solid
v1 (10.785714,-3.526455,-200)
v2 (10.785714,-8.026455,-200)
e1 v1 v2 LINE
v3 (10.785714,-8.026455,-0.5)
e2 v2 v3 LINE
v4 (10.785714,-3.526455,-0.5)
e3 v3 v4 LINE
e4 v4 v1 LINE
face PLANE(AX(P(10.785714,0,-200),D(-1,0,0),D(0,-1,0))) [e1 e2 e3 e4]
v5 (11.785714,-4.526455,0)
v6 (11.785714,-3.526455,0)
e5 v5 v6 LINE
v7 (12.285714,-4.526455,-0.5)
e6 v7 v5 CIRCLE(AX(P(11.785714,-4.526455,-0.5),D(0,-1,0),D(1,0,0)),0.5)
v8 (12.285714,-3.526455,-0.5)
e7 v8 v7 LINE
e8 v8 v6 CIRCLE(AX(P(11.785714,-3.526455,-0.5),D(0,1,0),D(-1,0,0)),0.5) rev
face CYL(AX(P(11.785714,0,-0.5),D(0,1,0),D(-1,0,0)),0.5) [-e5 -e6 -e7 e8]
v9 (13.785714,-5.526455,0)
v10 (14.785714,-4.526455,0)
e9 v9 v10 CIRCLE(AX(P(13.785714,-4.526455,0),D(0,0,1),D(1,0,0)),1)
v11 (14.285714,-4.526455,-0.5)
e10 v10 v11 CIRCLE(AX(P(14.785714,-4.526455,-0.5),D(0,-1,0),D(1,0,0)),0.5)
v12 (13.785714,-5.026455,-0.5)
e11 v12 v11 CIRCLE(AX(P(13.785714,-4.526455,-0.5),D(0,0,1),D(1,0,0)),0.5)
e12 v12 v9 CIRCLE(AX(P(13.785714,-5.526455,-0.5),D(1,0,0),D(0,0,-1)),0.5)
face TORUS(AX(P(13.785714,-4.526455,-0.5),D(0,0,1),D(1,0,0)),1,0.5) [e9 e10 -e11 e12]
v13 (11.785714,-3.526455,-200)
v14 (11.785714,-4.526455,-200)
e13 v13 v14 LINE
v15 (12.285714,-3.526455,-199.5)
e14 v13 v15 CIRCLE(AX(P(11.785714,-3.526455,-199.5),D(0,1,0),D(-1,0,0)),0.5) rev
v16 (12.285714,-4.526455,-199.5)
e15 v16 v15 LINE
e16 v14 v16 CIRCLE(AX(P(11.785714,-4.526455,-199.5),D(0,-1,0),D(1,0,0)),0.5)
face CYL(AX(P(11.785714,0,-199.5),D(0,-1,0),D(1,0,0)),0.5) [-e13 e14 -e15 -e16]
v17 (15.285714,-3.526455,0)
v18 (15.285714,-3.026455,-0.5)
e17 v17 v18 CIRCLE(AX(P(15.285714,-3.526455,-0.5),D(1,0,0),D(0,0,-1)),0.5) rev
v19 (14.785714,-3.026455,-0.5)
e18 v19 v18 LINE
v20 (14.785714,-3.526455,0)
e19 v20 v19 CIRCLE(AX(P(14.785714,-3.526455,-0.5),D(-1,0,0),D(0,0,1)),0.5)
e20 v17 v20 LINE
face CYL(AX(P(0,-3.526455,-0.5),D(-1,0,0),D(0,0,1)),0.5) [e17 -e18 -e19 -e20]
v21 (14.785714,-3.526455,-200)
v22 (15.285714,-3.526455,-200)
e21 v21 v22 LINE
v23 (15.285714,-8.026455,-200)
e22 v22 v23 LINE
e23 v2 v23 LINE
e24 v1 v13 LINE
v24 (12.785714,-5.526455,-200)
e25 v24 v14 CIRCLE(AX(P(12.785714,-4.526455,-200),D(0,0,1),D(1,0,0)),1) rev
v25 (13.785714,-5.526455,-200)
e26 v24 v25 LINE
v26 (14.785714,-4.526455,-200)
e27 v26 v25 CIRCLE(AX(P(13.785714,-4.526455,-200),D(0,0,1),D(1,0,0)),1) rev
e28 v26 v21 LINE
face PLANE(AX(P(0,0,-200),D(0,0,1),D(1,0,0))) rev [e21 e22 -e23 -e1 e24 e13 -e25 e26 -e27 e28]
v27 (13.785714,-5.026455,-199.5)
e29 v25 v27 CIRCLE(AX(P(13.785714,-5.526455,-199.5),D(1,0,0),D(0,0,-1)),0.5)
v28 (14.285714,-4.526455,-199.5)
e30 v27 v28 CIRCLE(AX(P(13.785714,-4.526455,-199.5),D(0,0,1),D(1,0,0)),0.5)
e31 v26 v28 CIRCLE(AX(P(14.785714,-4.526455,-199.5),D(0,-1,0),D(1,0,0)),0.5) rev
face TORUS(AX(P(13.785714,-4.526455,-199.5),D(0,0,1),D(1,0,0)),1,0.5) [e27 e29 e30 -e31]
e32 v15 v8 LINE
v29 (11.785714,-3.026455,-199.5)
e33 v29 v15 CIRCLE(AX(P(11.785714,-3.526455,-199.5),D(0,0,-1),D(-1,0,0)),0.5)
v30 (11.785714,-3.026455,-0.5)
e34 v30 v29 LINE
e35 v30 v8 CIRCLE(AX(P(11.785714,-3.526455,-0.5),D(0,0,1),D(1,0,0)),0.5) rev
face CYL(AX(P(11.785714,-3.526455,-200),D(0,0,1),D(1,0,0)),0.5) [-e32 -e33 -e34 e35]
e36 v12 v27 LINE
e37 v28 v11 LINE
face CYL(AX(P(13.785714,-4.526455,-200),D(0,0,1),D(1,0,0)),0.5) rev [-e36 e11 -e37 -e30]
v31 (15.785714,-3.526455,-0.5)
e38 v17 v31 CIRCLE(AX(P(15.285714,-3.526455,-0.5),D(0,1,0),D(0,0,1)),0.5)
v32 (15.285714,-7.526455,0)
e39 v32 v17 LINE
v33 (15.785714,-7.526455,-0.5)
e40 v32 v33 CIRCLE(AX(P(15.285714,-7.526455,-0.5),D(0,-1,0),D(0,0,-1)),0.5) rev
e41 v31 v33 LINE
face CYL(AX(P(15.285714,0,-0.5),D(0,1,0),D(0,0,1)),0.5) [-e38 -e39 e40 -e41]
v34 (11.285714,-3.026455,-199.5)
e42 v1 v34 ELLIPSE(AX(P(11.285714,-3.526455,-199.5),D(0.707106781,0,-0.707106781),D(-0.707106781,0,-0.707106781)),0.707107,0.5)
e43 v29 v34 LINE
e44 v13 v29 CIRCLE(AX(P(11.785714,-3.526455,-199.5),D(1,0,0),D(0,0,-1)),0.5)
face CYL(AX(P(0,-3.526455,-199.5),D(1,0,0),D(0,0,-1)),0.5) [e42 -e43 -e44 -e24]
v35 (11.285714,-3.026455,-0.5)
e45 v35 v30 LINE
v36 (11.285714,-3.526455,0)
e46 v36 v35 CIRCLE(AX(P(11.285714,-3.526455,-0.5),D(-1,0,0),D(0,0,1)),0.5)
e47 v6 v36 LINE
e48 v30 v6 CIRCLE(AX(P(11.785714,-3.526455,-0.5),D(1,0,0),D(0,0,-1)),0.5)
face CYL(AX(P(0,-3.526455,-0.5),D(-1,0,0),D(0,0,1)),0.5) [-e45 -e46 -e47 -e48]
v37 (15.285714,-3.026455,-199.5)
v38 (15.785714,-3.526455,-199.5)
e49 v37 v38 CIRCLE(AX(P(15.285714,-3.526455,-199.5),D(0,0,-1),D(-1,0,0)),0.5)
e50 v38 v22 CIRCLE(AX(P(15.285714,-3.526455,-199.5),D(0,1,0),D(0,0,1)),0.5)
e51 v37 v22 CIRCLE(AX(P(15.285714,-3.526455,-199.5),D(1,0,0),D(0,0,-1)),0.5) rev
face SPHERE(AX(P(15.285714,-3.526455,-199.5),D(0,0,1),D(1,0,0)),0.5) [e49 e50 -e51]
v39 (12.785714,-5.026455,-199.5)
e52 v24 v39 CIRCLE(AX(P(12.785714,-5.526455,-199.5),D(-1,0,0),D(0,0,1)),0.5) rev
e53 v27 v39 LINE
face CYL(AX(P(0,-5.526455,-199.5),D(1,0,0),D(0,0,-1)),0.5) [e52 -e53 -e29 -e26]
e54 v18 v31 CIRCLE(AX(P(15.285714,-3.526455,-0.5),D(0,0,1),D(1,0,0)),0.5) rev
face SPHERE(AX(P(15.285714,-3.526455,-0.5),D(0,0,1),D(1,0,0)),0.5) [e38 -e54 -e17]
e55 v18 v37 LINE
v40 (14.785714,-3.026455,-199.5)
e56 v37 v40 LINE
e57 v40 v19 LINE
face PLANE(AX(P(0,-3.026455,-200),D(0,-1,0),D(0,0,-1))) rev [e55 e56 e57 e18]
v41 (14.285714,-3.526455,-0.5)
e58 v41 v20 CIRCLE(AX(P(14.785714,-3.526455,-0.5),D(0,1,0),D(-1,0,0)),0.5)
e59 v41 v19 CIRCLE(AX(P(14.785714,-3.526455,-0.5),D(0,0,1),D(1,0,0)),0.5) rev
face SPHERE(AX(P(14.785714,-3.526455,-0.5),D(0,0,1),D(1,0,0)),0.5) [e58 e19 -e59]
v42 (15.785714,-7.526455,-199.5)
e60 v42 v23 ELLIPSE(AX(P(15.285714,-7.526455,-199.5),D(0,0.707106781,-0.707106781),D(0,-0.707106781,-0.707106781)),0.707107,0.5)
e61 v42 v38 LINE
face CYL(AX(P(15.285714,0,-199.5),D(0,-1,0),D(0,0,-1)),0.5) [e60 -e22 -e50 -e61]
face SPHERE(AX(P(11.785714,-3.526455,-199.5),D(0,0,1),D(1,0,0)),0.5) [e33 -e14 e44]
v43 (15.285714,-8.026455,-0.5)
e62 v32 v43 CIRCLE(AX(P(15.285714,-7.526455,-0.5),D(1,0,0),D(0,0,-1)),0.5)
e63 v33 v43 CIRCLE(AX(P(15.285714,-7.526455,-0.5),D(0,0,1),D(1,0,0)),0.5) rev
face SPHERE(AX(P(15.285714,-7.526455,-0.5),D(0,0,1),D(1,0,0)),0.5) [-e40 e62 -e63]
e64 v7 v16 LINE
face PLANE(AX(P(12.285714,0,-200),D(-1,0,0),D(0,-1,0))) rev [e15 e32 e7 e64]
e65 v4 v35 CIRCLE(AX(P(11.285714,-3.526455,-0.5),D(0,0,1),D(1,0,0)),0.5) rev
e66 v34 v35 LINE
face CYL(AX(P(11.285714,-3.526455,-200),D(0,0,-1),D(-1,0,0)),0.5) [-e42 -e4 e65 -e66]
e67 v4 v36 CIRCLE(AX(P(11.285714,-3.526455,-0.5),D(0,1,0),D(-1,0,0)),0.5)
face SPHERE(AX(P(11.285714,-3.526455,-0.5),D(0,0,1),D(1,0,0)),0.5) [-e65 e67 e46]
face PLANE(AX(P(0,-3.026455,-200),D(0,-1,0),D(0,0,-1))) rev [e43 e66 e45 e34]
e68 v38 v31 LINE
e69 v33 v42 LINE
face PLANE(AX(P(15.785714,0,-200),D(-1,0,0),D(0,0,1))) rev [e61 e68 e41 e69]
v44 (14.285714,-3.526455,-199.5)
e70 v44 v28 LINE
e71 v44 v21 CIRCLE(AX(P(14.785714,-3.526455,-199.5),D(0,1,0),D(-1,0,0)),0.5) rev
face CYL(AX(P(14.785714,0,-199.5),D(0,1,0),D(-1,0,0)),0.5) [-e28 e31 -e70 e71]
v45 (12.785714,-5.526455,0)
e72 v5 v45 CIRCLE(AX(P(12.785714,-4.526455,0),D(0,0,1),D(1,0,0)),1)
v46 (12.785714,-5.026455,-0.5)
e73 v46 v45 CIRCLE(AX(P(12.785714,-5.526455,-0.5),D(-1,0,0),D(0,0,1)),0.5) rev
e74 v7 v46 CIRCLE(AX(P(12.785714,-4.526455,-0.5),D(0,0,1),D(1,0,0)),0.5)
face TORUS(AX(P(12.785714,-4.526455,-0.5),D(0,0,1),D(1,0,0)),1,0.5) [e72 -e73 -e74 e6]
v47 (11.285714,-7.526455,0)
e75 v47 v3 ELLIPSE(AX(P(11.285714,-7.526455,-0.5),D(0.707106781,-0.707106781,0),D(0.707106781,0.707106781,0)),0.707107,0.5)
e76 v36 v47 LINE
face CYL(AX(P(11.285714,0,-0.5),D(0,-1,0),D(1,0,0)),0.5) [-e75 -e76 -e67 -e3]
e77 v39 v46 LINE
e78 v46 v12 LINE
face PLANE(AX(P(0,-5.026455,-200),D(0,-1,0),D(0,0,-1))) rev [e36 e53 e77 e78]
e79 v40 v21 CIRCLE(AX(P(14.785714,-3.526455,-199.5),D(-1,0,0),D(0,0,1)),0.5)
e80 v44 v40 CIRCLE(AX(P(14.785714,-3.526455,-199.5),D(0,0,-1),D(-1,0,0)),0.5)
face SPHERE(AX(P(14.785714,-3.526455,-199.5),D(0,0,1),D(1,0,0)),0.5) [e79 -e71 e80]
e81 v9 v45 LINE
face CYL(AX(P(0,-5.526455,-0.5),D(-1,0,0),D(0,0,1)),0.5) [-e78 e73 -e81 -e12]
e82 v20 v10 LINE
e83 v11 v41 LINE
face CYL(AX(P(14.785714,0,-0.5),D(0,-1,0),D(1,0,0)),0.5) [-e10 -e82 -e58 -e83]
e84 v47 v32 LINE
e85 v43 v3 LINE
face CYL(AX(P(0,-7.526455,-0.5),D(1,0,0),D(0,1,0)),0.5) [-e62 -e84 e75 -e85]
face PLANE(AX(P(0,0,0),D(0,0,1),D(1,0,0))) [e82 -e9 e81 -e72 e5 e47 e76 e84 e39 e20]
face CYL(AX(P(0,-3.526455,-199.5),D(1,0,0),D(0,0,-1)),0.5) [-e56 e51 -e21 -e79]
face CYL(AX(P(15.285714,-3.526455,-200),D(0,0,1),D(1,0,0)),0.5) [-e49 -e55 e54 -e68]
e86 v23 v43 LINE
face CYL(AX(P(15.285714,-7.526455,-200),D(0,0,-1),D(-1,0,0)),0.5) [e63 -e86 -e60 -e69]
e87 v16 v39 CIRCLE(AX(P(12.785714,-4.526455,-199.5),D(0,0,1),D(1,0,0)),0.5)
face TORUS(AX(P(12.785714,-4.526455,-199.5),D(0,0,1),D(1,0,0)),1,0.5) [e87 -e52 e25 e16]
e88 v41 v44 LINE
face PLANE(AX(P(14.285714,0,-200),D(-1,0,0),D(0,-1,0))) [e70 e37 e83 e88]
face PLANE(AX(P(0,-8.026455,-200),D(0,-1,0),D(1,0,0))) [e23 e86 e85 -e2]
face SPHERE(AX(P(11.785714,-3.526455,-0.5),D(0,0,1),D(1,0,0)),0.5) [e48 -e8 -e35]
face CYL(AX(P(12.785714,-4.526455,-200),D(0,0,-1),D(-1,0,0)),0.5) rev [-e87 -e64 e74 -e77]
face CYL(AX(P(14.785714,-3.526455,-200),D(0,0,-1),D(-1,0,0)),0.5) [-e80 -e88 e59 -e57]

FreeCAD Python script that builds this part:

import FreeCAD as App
import Part
import Sketcher

V = App.Vector
Q = App.Units.Quantity


def edges_at(feature, points):
    """Names of the edges that pass closest to the given points."""
    edges = feature.Shape.Edges
    near = lambda p: min(range(len(edges)), key=lambda i: edges[i].distToShape(Part.Vertex(*p))[0])
    return sorted({f"Edge{near(p) + 1}" for p in points})


def add_polygon(sketch, points):
    """Adds a closed chain of lines whose ends are joined by coincident constraints."""
    first, n = sketch.GeometryCount, len(points)
    for a, b in zip(points, points[1:] + points[:1]):
        sketch.addGeometry(Part.LineSegment(App.Vector(*a, 0), App.Vector(*b, 0)), False)
    for i in range(n):
        sketch.addConstraint(Sketcher.Constraint("Coincident", first + i, 2, first + (i + 1) % n, 1))

doc = App.newDocument("Part")
body = doc.addObject("PartDesign::Body", "Body")

# Sketch on XY plane
sketch1 = doc.addObject("Sketcher::SketchObject", "Sketch")
body.addObject(sketch1)
sketch1.AttachmentSupport = (doc.XY_Plane, [""])
sketch1.MapMode = "FlatFace"
add_polygon(sketch1, [(12.285714, -3.026455), (10.785714, -3.026455), (10.785714, -8.026455), (15.785714, -8.026455), (15.785714, -3.026455), (14.285714, -3.026455), (14.285714, -5.026455), (12.285714, -5.026455)])  # lines 0-7
sketch1.addConstraint([
    Sketcher.Constraint("Horizontal", 0),
    Sketcher.Constraint("Vertical", 1),
    Sketcher.Constraint("Horizontal", 2),
    Sketcher.Constraint("Vertical", 3),
    Sketcher.Constraint("Horizontal", 4),
    Sketcher.Constraint("Vertical", 5),
    Sketcher.Constraint("Horizontal", 6),
    Sketcher.Constraint("Vertical", 7),
    Sketcher.Constraint("Horizontal", 0, 2, 3, 2),
    Sketcher.Constraint("Equal", 0, 4),
    Sketcher.Constraint("Equal", 2, 1),
    Sketcher.Constraint("Equal", 6, 5),
    Sketcher.Constraint("DistanceX", 2, 1, 2, 2, Q("5 mm")),
    Sketcher.Constraint("DistanceX", 6, 2, 6, 1, Q("2 mm")),
    Sketcher.Constraint("DistanceX", -1, 1, 0, 2, Q("10.785714 mm")),
    Sketcher.Constraint("DistanceY", 0, 2, -1, 1, Q("3.026455 mm")),
])
pad1 = doc.addObject("PartDesign::Pad", "Pad")
body.addObject(pad1)
pad1.Profile = sketch1
pad1.Length = 200
pad1.Reversed = True
doc.recompute()

fillet = doc.addObject("PartDesign::Fillet", "Fillet")
body.addObject(fillet)
fillet.Base = (pad1, edges_at(pad1, [
    (11.536, -3.026, 0),
    (12.286, -4.026, 0),
    (13.286, -5.026, 0),
    (14.286, -4.026, 0),
    (15.036, -3.026, 0),
    (13.286, -5.026, -200),
    (15.786, -3.026, -100),
    (15.786, -8.026, -100),
    (10.786, -3.026, -100),
    (12.286, -3.026, -100),
    (12.286, -5.026, -100),
    (14.286, -5.026, -100),
    (14.286, -3.026, -100),
    (12.286, -4.026, -200),
    (11.536, -3.026, -200),
    (15.786, -5.526, -200),
    (15.036, -3.026, -200),
    (15.786, -5.526, 0),
    (14.286, -4.026, -200),
    (13.286, -8.026, 0),
    (10.786, -5.526, 0),
]))
fillet.Radius = 0.5

doc.recompute()
